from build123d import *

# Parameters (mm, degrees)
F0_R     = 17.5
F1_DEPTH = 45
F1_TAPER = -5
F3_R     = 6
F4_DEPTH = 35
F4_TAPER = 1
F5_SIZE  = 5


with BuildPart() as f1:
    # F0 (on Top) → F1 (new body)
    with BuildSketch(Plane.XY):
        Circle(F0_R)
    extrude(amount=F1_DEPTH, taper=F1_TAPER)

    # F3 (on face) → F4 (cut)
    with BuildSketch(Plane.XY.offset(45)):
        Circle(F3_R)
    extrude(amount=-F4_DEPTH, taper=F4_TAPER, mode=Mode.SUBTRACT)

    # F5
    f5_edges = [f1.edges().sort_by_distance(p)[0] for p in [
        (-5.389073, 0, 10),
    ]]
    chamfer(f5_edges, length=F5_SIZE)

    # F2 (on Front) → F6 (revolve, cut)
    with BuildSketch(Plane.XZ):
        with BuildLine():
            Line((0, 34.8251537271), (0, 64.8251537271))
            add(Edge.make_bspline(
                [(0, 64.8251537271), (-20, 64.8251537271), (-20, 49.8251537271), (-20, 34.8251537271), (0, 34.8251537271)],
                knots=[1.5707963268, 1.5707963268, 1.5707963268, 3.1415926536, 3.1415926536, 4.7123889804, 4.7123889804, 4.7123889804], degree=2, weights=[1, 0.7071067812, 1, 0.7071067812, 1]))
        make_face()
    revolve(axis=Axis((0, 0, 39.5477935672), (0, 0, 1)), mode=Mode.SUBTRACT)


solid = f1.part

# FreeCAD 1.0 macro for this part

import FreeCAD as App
import Part
import Sketcher

V = App.Vector


def edges_at(feature, points):
    """Names of the edges that pass closest to the given points."""
    edges = feature.Shape.Edges
    near = lambda p: min(range(len(edges)), key=lambda i: edges[i].distToShape(Part.Vertex(*p))[0])
    return sorted({f"Edge{near(p) + 1}" for p in points})

doc = App.newDocument("Part")
body = doc.addObject("PartDesign::Body", "Body")

# Sketch on XY plane
sketch1 = doc.addObject("Sketcher::SketchObject", "Sketch")
body.addObject(sketch1)
sketch1.AttachmentSupport = (doc.XY_Plane, [""])
sketch1.MapMode = "FlatFace"
sketch1.addGeometry(Part.Circle(V(0, 0, 0), V(0, 0, 1), 18), False)
sketch1.addConstraint([
    Sketcher.Constraint("Coincident", 0, 3, -1, 1),
    Sketcher.Constraint("Diameter", 0, 35.0),
])
pad1 = doc.addObject("PartDesign::Pad", "Pad")
body.addObject(pad1)
pad1.Profile = sketch1
pad1.Length = 45
pad1.TaperAngle = 5

# Sketch on XY plane
sketch2 = doc.addObject("Sketcher::SketchObject", "Sketch001")
body.addObject(sketch2)
sketch2.AttachmentSupport = (doc.XY_Plane, [""])
sketch2.MapMode = "FlatFace"
sketch2.AttachmentOffset = App.Placement(V(0, 0, 45), App.Rotation())
sketch2.addGeometry(Part.Circle(V(0, 0, 0), V(0, 0, 1), 6), False)
sketch2.addConstraint([
    Sketcher.Constraint("Coincident", 0, 3, -1, 1),
    Sketcher.Constraint("Diameter", 0, 12.0),
])
pocket1 = doc.addObject("PartDesign::Pocket", "Pocket")
body.addObject(pocket1)
pocket1.Profile = sketch2
pocket1.Length = 35
pocket1.TaperAngle = -1
doc.recompute()

chamfer = doc.addObject("PartDesign::Chamfer", "Chamfer")
body.addObject(chamfer)
chamfer.Base = (pocket1, edges_at(pocket1, [(-5.389, 0, 10)]))
chamfer.Size = 5

# Sketch on XZ plane
sketch3 = doc.addObject("Sketcher::SketchObject", "Sketch002")
body.addObject(sketch3)
sketch3.AttachmentSupport = (doc.XZ_Plane, [""])
sketch3.MapMode = "FlatFace"
sketch3.addGeometry([
    Part.LineSegment(V(0, 34.825154, 0), V(0, 64.825154, 0)),
    Part.BSplineCurve([V(0, 64.825154, 0), V(-20, 64.825154, 0), V(-20, 49.825154, 0), V(-20, 34.825154, 0), V(0, 34.825154, 0)], [3, 2, 3], [1.570796327, 3.141592654, 4.71238898], False, 2, [1, 0.707106781, 1, 0.707106781, 1], False),
], False)
sketch3.addConstraint([
    Sketcher.Constraint("Block", 1),
    Sketcher.Constraint("Coincident", 0, 1, 1, 2),
    Sketcher.Constraint("Coincident", 1, 1, 0, 2),
])
groove = doc.addObject("PartDesign::Groove", "Groove")
body.addObject(groove)
groove.Profile = sketch3
groove.ReferenceAxis = (sketch3, ["V_Axis"])
groove.Angle = 360

doc.recompute()
